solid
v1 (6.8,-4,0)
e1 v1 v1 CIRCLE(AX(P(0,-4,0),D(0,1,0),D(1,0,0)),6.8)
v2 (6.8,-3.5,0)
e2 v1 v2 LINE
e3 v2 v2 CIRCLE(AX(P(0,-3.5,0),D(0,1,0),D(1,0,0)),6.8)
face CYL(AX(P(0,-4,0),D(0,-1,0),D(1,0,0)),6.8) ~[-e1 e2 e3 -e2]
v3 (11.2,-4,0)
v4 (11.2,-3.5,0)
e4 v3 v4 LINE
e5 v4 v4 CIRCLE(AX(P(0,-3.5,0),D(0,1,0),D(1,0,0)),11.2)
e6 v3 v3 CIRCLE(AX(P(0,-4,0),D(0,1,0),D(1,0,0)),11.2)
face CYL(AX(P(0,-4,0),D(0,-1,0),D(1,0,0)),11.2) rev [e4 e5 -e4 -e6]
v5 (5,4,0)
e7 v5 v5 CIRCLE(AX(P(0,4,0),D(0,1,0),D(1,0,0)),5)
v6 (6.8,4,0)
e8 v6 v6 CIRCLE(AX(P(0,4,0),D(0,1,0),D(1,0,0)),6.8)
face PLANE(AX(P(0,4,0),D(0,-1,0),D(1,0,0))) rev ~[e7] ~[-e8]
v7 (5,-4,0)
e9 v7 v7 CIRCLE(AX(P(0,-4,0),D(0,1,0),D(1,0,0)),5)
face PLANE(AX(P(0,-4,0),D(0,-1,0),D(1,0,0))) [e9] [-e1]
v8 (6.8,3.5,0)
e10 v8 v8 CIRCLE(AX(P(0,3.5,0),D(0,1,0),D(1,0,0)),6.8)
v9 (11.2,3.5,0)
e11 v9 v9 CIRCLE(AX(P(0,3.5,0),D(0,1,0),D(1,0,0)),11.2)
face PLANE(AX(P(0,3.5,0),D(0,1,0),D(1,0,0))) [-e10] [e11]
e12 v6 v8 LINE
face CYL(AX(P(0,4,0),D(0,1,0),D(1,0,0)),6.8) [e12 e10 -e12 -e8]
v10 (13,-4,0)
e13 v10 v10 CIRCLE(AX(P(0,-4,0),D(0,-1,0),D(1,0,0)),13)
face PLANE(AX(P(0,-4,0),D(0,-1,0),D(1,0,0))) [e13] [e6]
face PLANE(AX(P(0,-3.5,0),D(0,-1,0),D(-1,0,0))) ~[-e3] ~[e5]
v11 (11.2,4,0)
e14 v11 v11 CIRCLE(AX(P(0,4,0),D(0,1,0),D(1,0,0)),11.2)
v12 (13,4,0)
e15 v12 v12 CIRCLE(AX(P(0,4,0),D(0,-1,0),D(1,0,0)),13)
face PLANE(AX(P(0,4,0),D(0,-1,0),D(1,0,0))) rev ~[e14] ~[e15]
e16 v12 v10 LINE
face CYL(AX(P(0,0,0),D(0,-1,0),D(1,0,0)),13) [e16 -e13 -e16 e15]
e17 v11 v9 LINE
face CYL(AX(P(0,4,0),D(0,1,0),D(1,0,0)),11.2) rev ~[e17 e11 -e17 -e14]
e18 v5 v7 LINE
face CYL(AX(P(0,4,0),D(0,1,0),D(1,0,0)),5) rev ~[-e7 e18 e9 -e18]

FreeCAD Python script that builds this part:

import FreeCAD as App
import Part
import Sketcher
Q = App.Units.Quantity

doc = App.newDocument("Part")
body = doc.addObject("PartDesign::Body", "Body")

sketch1 = body.newObject("Sketcher::SketchObject", "Sketch")
sketch1.AttachmentSupport = (doc.getObject("XZ_Plane"), [""])
sketch1.MapMode = "FlatFace"
sketch1.addGeometry(Part.Circle(App.Vector(0, 0, 0), App.Vector(0, 0, 1), 13), False)
sketch1.addConstraint([
    Sketcher.Constraint("Coincident", 0, 3, -1, 1),
    Sketcher.Constraint("Diameter", 0, Q("26 mm")),
])
pad1 = body.newObject("PartDesign::Pad", "Pad")
pad1.Profile = sketch1
pad1.Length = 8
pad1.Midplane = True

sketch2 = body.newObject("Sketcher::SketchObject", "Sketch001")
sketch2.AttachmentSupport = (doc.getObject("XZ_Plane"), [""])
sketch2.MapMode = "FlatFace"
sketch2.AttachmentOffset = App.Placement(App.Vector(0, 0, -4), App.Rotation())
sketch2.addGeometry([
    Part.Circle(App.Vector(0, 0, 0), App.Vector(0, 0, 1), 11),
    Part.Circle(App.Vector(0, 0, 0), App.Vector(0, 0, 1), 7),
], False)
sketch2.addConstraint([
    Sketcher.Constraint("Coincident", 0, 3, -1, 1),
    Sketcher.Constraint("Coincident", 1, 3, -1, 1),
    Sketcher.Constraint("Diameter", 0, Q("22.4 mm")),
    Sketcher.Constraint("Diameter", 1, Q("13.6 mm")),
])
pocket1 = body.newObject("PartDesign::Pocket", "Pocket")
pocket1.Profile = sketch2
pocket1.Length = 0.5
pocket1.Reversed = True
doc.recompute()

mirrored = body.newObject("PartDesign::Mirrored", "Mirrored")
mirrored.Originals = [pocket1]
mirrored.MirrorPlane = (doc.getObject("XZ_Plane"), [""])
body.Tip = mirrored

sketch3 = body.newObject("Sketcher::SketchObject", "Sketch002")
sketch3.AttachmentSupport = (doc.getObject("XZ_Plane"), [""])
sketch3.MapMode = "FlatFace"
sketch3.AttachmentOffset = App.Placement(App.Vector(0, 0, -4), App.Rotation())
sketch3.addGeometry(Part.Circle(App.Vector(0, 0, 0), App.Vector(0, 0, 1), 5), False)
sketch3.addConstraint([
    Sketcher.Constraint("Coincident", 0, 3, -1, 1),
    Sketcher.Constraint("Diameter", 0, Q("10 mm")),
])
pocket2 = body.newObject("PartDesign::Pocket", "Pocket001")
pocket2.Profile = sketch3
pocket2.Type = "ThroughAll"
pocket2.Reversed = True

doc.recompute()
